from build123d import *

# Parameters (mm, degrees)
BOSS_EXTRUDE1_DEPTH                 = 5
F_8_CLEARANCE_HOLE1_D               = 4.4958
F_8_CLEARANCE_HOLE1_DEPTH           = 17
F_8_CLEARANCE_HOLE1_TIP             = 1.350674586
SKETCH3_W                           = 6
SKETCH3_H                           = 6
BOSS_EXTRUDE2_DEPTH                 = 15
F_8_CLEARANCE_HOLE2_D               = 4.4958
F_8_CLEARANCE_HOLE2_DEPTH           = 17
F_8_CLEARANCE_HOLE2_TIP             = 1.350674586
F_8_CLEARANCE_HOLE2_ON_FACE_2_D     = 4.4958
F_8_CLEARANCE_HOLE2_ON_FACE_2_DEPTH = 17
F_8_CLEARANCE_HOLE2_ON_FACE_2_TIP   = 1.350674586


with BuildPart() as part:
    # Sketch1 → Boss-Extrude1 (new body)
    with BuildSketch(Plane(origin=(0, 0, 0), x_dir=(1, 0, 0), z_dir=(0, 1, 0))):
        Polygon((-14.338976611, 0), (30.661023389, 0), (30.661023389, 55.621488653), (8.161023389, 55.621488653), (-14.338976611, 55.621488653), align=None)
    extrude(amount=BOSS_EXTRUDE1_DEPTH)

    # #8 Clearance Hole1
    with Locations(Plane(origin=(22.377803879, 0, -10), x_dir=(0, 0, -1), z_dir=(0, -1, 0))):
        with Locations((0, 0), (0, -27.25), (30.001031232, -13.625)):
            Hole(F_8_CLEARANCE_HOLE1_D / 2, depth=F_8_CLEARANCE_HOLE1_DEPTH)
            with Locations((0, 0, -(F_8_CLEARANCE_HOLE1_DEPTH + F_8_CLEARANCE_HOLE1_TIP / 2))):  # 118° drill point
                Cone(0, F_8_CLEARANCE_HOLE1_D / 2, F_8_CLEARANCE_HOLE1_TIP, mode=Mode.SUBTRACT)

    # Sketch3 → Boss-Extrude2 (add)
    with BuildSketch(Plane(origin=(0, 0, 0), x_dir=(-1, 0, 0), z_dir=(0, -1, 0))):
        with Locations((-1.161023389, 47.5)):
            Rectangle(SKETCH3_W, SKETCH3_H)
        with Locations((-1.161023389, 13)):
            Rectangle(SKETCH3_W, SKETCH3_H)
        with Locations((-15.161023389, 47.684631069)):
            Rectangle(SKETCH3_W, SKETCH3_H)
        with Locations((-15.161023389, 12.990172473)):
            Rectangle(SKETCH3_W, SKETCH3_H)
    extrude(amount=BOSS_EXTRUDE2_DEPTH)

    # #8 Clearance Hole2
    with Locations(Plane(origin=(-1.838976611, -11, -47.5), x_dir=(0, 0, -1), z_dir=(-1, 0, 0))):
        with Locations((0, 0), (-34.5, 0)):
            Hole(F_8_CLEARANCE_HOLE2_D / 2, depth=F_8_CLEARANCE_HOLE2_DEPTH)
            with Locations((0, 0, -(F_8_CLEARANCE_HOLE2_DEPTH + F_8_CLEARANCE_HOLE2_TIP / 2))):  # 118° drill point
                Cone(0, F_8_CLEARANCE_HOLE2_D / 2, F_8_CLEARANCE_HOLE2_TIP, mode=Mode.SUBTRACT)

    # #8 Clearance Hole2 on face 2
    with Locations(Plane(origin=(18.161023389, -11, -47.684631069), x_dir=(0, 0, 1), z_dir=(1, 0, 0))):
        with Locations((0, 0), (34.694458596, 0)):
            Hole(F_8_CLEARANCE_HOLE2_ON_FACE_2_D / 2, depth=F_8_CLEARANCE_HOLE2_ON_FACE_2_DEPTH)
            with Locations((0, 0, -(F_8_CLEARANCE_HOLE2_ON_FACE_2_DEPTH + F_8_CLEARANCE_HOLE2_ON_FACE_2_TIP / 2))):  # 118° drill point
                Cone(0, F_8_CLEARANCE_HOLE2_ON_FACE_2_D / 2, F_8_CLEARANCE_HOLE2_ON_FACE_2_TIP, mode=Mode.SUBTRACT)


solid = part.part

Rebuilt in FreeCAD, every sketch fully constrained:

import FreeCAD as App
import Part
import Sketcher

V = App.Vector

doc = App.newDocument("Part")
params = doc.addObject("Spreadsheet::Sheet", "Params")
for row, (alias, value) in enumerate([
    ("sketch1_width", "45 mm"),
    ("pad1_length", "5 mm"),
    ("hole_diameter", "4.4958 mm"),
    ("hole_depth", "17 mm"),
    ("sketch3_width", "6 mm"),
    ("pad2_length", "15 mm"),
    ("hole2_diameter", "4.4958 mm"),
    ("hole2_depth", "17 mm"),
    ("hole3_diameter", "4.4958 mm"),
    ("hole3_depth", "17 mm"),
], start=1):
    params.set(f"A{row}", alias)
    params.set(f"B{row}", "=" + value)
    params.setAlias(f"B{row}", alias)

body = doc.addObject("PartDesign::Body", "Body")

# Sketch on XZ plane
sketch1 = body.newObject("Sketcher::SketchObject", "Sketch")
sketch1.AttachmentSupport = (doc.getObject("XZ_Plane"), [""])
sketch1.MapMode = "FlatFace"
sketch1.addGeometry([
    Part.LineSegment(V(-14, 0, 0), V(31, 0, 0)),
    Part.LineSegment(V(31, 0, 0), V(31, -56, 0)),
    Part.LineSegment(V(31, -56, 0), V(-14, -56, 0)),
    Part.LineSegment(V(-14, -56, 0), V(-14, 0, 0)),
], False)
sketch1.addConstraint([
    Sketcher.Constraint("Coincident", 0, 2, 1, 1),
    Sketcher.Constraint("Coincident", 1, 2, 2, 1),
    Sketcher.Constraint("Coincident", 2, 2, 3, 1),
    Sketcher.Constraint("Coincident", 3, 2, 0, 1),
    Sketcher.Constraint("Horizontal", 0),
    Sketcher.Constraint("Vertical", 1),
    Sketcher.Constraint("Horizontal", 2),
    Sketcher.Constraint("Vertical", 3),
    Sketcher.Constraint("PointOnObject", 0, 2, -1),
    Sketcher.Constraint("DistanceX", 0, 1, 0, 2, 45.0),
    Sketcher.Constraint("DistanceY", 1, 2, 1, 1, 55.621489),
    Sketcher.Constraint("DistanceX", -1, 1, 0, 2, 30.661023),
])
sketch1.setExpression("Constraints[9]", "Params.sketch1_width")
pad1 = body.newObject("PartDesign::Pad", "Pad")
pad1.Profile = sketch1
pad1.setExpression("Length", "Params.pad1_length")
pad1.Reversed = True

# Sketch on XZ plane
sketch2 = body.newObject("Sketcher::SketchObject", "Sketch001")
sketch2.AttachmentSupport = (doc.getObject("XZ_Plane"), [""])
sketch2.MapMode = "FlatFace"
sketch2.addGeometry([
    Part.Circle(V(22.4, -10, 0), V(0, 0, 1), 2.2),
    Part.Circle(V(-4.9, -10, 0), V(0, 0, 1), 2.2),
    Part.Circle(V(8.8, -40, 0), V(0, 0, 1), 2.2),
], False)
sketch2.addConstraint([
    Sketcher.Constraint("Equal", 0, 1),
    Sketcher.Constraint("Equal", 1, 2),
    Sketcher.Constraint("Horizontal", 0, 3, 1, 3),
    Sketcher.Constraint("DistanceY", 0, 3, -1, 1, 10.0),
    Sketcher.Constraint("Diameter", 0, 4.4958),
    Sketcher.Constraint("DistanceX", 1, 3, 0, 3, 27.25),
    Sketcher.Constraint("DistanceX", 2, 3, 0, 3, 13.625),
    Sketcher.Constraint("DistanceY", 2, 3, -1, 1, 40.001031),
    Sketcher.Constraint("DistanceX", -1, 1, 0, 3, 22.377804),
])
doc.recompute()
hole = body.newObject("PartDesign::Hole", "Hole")
hole.Profile = sketch2
hole.ThreadType = "None"
hole.setExpression("Diameter", "Params.hole_diameter")
hole.DepthType = "Dimension"
hole.setExpression("Depth", "Params.hole_depth")
hole.DrillPoint = "Angled"
hole.DrillPointAngle = 118

# Sketch on XZ plane
sketch3 = body.newObject("Sketcher::SketchObject", "Sketch002")
sketch3.AttachmentSupport = (doc.getObject("XZ_Plane"), [""])
sketch3.MapMode = "FlatFace"
sketch3.addGeometry([
    Part.LineSegment(V(4, -50, 0), V(4, -44, 0)),  # 0
    Part.LineSegment(V(4, -44, 0), V(-2, -44, 0)),  # 1
    Part.LineSegment(V(-2, -44, 0), V(-2, -50, 0)),  # 2
    Part.LineSegment(V(-2, -50, 0), V(4, -50, 0)),  # 3
    Part.LineSegment(V(4, -16, 0), V(4, -10, 0)),  # 4
    Part.LineSegment(V(4, -10, 0), V(-2, -10, 0)),  # 5
    Part.LineSegment(V(-2, -10, 0), V(-2, -16, 0)),  # 6
    Part.LineSegment(V(-2, -16, 0), V(4, -16, 0)),  # 7
    Part.LineSegment(V(18, -51, 0), V(18, -45, 0)),  # 8
    Part.LineSegment(V(18, -45, 0), V(12, -45, 0)),  # 9
    Part.LineSegment(V(12, -45, 0), V(12, -51, 0)),  # 10
    Part.LineSegment(V(12, -51, 0), V(18, -51, 0)),  # 11
    Part.LineSegment(V(18, -16, 0), V(18, -10, 0)),  # 12
    Part.LineSegment(V(18, -10, 0), V(12, -10, 0)),  # 13
    Part.LineSegment(V(12, -10, 0), V(12, -16, 0)),  # 14
    Part.LineSegment(V(12, -16, 0), V(18, -16, 0)),  # 15
], False)
sketch3.addConstraint([
    Sketcher.Constraint("Coincident", 0, 2, 1, 1),
    Sketcher.Constraint("Coincident", 1, 2, 2, 1),
    Sketcher.Constraint("Coincident", 2, 2, 3, 1),
    Sketcher.Constraint("Coincident", 3, 2, 0, 1),
    Sketcher.Constraint("Coincident", 4, 2, 5, 1),
    Sketcher.Constraint("Coincident", 5, 2, 6, 1),
    Sketcher.Constraint("Coincident", 6, 2, 7, 1),
    Sketcher.Constraint("Coincident", 7, 2, 4, 1),
    Sketcher.Constraint("Coincident", 8, 2, 9, 1),
    Sketcher.Constraint("Coincident", 9, 2, 10, 1),
    Sketcher.Constraint("Coincident", 10, 2, 11, 1),
    Sketcher.Constraint("Coincident", 11, 2, 8, 1),
    Sketcher.Constraint("Coincident", 12, 2, 13, 1),
    Sketcher.Constraint("Coincident", 13, 2, 14, 1),
    Sketcher.Constraint("Coincident", 14, 2, 15, 1),
    Sketcher.Constraint("Coincident", 15, 2, 12, 1),
    Sketcher.Constraint("Vertical", 0),
    Sketcher.Constraint("Horizontal", 1),
    Sketcher.Constraint("Vertical", 2),
    Sketcher.Constraint("Horizontal", 3),
    Sketcher.Constraint("Vertical", 4),
    Sketcher.Constraint("Horizontal", 5),
    Sketcher.Constraint("Vertical", 6),
    Sketcher.Constraint("Horizontal", 7),
    Sketcher.Constraint("Vertical", 8),
    Sketcher.Constraint("Horizontal", 9),
    Sketcher.Constraint("Vertical", 10),
    Sketcher.Constraint("Horizontal", 11),
    Sketcher.Constraint("Vertical", 12),
    Sketcher.Constraint("Horizontal", 13),
    Sketcher.Constraint("Vertical", 14),
    Sketcher.Constraint("Horizontal", 15),
    Sketcher.Constraint("Vertical", 3, 2, 4, 2),
    Sketcher.Constraint("Vertical", 2, 2, 5, 2),
    Sketcher.Constraint("Vertical", 11, 2, 12, 2),
    Sketcher.Constraint("Vertical", 10, 2, 13, 2),
    Sketcher.Constraint("Equal", 7, 9),
    Sketcher.Constraint("Equal", 15, 0),
    Sketcher.Constraint("Equal", 2, 4),
    Sketcher.Constraint("Equal", 6, 8),
    Sketcher.Constraint("Equal", 10, 12),
    Sketcher.Constraint("DistanceX", 1, 2, 1, 1, 6.0),
    Sketcher.Constraint("DistanceY", 4, 2, -1, 1, 10.0),
    Sketcher.Constraint("DistanceX", 0, 2, 8, 2, 14.0),
    Sketcher.Constraint("DistanceY", 0, 2, -1, 1, 44.5),
    Sketcher.Constraint("DistanceY", 8, 2, -1, 1, 44.684631),
    Sketcher.Constraint("DistanceY", 8, 2, 12, 2, 34.694459),
    Sketcher.Constraint("DistanceX", -1, 1, 0, 2, 4.161023),
])
sketch3.setExpression("Constraints[41]", "Params.sketch3_width")
pad2 = body.newObject("PartDesign::Pad", "Pad001")
pad2.Profile = sketch3
pad2.setExpression("Length", "Params.pad2_length")

# Sketch on YZ plane
sketch4 = body.newObject("Sketcher::SketchObject", "Sketch003")
sketch4.AttachmentSupport = (doc.getObject("YZ_Plane"), [""])
sketch4.MapMode = "FlatFace"
sketch4.AttachmentOffset = App.Placement(V(0, 0, -1.838977), App.Rotation())
sketch4.addGeometry([
    Part.Circle(V(-11, -47.5, 0), V(0, 0, 1), 2.2),
    Part.Circle(V(-11, -13, 0), V(0, 0, 1), 2.2),
], False)
sketch4.addConstraint([
    Sketcher.Constraint("Equal", 0, 1),
    Sketcher.Constraint("Vertical", 0, 3, 1, 3),
    Sketcher.Constraint("DistanceX", 0, 3, -1, 1, 11.0),
    Sketcher.Constraint("DistanceY", 1, 3, -1, 1, 13.0),
    Sketcher.Constraint("Diameter", 0, 4.4958),
    Sketcher.Constraint("DistanceY", 0, 3, -1, 1, 47.5),
])
doc.recompute()
hole2 = body.newObject("PartDesign::Hole", "Hole001")
hole2.Profile = sketch4
hole2.ThreadType = "None"
hole2.setExpression("Diameter", "Params.hole2_diameter")
hole2.DepthType = "Dimension"
hole2.setExpression("Depth", "Params.hole2_depth")
hole2.DrillPoint = "Angled"
hole2.DrillPointAngle = 118
hole2.Reversed = True

# Sketch on YZ plane
sketch5 = body.newObject("Sketcher::SketchObject", "Sketch004")
sketch5.AttachmentSupport = (doc.getObject("YZ_Plane"), [""])
sketch5.MapMode = "FlatFace"
sketch5.AttachmentOffset = App.Placement(V(0, 0, 18.161023), App.Rotation())
sketch5.addGeometry([
    Part.Circle(V(-11, -47.7, 0), V(0, 0, 1), 2.2),
    Part.Circle(V(-11, -13, 0), V(0, 0, 1), 2.2),
], False)
sketch5.addConstraint([
    Sketcher.Constraint("Equal", 0, 1),
    Sketcher.Constraint("Vertical", 0, 3, 1, 3),
    Sketcher.Constraint("DistanceX", 0, 3, -1, 1, 11.0),
    Sketcher.Constraint("Diameter", 0, 4.4958),
    Sketcher.Constraint("DistanceY", 0, 3, -1, 1, 47.684631),
    Sketcher.Constraint("DistanceY", 0, 3, 1, 3, 34.694459),
])
doc.recompute()
hole3 = body.newObject("PartDesign::Hole", "Hole002")
hole3.Profile = sketch5
hole3.ThreadType = "None"
hole3.setExpression("Diameter", "Params.hole3_diameter")
hole3.DepthType = "Dimension"
hole3.setExpression("Depth", "Params.hole3_depth")
hole3.DrillPoint = "Angled"
hole3.DrillPointAngle = 118

doc.recompute()
